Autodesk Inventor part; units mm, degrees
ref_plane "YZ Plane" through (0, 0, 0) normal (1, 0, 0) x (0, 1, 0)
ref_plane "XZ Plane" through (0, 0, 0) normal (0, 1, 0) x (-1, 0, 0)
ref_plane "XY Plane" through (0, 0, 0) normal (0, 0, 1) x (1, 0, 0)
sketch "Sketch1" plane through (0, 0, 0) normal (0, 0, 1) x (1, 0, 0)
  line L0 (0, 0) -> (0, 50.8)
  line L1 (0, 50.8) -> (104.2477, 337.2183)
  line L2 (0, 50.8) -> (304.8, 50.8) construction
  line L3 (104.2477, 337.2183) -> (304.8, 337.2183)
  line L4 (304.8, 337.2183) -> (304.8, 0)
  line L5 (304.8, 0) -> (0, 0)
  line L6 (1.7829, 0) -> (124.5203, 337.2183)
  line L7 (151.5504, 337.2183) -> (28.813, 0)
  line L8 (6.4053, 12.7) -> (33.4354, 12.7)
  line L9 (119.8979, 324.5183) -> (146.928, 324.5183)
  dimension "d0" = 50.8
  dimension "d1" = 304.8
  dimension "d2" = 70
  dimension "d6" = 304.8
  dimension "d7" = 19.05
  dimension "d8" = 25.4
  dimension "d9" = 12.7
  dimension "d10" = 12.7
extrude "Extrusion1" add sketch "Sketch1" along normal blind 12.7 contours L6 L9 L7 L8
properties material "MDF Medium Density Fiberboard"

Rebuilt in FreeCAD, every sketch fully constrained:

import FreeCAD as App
import Part
import Sketcher
Q = App.Units.Quantity

doc = App.newDocument("Part")
body = doc.addObject("PartDesign::Body", "Body")

# Sketch on XY plane
sketch1 = body.newObject("Sketcher::SketchObject", "Sketch")
sketch1.AttachmentSupport = (doc.getObject("XY_Plane"), [""])
sketch1.MapMode = "FlatFace"
sketch1.addGeometry([
    Part.LineSegment(App.Vector(120, 325, 0), App.Vector(6, 13, 0)),
    Part.LineSegment(App.Vector(6, 13, 0), App.Vector(33, 13, 0)),
    Part.LineSegment(App.Vector(33, 13, 0), App.Vector(147, 325, 0)),
    Part.LineSegment(App.Vector(147, 325, 0), App.Vector(120, 325, 0)),
], False)
sketch1.addConstraint([
    Sketcher.Constraint("Coincident", 0, 2, 1, 1),
    Sketcher.Constraint("Coincident", 1, 2, 2, 1),
    Sketcher.Constraint("Coincident", 2, 2, 3, 1),
    Sketcher.Constraint("Coincident", 3, 2, 0, 1),
    Sketcher.Constraint("Horizontal", 1),
    Sketcher.Constraint("Horizontal", 3),
    Sketcher.Constraint("Parallel", 0, 2),
    Sketcher.Constraint("Angle", 2, Q("70 deg")),
    Sketcher.Constraint("DistanceY", -1, 1, 0, 2, Q("0.5 in")),
    Sketcher.Constraint("DistanceX", 1, 1, 1, 2, 27.03),
    Sketcher.Constraint("DistanceY", -1, 1, 2, 2, Q("12.7763 in")),
    Sketcher.Constraint("DistanceX", -1, 1, 3, 2, Q("4.7204 in")),
])
pad1 = body.newObject("PartDesign::Pad", "Pad")
pad1.Profile = sketch1
pad1.Length = Q("0.5 in")

doc.recompute()
